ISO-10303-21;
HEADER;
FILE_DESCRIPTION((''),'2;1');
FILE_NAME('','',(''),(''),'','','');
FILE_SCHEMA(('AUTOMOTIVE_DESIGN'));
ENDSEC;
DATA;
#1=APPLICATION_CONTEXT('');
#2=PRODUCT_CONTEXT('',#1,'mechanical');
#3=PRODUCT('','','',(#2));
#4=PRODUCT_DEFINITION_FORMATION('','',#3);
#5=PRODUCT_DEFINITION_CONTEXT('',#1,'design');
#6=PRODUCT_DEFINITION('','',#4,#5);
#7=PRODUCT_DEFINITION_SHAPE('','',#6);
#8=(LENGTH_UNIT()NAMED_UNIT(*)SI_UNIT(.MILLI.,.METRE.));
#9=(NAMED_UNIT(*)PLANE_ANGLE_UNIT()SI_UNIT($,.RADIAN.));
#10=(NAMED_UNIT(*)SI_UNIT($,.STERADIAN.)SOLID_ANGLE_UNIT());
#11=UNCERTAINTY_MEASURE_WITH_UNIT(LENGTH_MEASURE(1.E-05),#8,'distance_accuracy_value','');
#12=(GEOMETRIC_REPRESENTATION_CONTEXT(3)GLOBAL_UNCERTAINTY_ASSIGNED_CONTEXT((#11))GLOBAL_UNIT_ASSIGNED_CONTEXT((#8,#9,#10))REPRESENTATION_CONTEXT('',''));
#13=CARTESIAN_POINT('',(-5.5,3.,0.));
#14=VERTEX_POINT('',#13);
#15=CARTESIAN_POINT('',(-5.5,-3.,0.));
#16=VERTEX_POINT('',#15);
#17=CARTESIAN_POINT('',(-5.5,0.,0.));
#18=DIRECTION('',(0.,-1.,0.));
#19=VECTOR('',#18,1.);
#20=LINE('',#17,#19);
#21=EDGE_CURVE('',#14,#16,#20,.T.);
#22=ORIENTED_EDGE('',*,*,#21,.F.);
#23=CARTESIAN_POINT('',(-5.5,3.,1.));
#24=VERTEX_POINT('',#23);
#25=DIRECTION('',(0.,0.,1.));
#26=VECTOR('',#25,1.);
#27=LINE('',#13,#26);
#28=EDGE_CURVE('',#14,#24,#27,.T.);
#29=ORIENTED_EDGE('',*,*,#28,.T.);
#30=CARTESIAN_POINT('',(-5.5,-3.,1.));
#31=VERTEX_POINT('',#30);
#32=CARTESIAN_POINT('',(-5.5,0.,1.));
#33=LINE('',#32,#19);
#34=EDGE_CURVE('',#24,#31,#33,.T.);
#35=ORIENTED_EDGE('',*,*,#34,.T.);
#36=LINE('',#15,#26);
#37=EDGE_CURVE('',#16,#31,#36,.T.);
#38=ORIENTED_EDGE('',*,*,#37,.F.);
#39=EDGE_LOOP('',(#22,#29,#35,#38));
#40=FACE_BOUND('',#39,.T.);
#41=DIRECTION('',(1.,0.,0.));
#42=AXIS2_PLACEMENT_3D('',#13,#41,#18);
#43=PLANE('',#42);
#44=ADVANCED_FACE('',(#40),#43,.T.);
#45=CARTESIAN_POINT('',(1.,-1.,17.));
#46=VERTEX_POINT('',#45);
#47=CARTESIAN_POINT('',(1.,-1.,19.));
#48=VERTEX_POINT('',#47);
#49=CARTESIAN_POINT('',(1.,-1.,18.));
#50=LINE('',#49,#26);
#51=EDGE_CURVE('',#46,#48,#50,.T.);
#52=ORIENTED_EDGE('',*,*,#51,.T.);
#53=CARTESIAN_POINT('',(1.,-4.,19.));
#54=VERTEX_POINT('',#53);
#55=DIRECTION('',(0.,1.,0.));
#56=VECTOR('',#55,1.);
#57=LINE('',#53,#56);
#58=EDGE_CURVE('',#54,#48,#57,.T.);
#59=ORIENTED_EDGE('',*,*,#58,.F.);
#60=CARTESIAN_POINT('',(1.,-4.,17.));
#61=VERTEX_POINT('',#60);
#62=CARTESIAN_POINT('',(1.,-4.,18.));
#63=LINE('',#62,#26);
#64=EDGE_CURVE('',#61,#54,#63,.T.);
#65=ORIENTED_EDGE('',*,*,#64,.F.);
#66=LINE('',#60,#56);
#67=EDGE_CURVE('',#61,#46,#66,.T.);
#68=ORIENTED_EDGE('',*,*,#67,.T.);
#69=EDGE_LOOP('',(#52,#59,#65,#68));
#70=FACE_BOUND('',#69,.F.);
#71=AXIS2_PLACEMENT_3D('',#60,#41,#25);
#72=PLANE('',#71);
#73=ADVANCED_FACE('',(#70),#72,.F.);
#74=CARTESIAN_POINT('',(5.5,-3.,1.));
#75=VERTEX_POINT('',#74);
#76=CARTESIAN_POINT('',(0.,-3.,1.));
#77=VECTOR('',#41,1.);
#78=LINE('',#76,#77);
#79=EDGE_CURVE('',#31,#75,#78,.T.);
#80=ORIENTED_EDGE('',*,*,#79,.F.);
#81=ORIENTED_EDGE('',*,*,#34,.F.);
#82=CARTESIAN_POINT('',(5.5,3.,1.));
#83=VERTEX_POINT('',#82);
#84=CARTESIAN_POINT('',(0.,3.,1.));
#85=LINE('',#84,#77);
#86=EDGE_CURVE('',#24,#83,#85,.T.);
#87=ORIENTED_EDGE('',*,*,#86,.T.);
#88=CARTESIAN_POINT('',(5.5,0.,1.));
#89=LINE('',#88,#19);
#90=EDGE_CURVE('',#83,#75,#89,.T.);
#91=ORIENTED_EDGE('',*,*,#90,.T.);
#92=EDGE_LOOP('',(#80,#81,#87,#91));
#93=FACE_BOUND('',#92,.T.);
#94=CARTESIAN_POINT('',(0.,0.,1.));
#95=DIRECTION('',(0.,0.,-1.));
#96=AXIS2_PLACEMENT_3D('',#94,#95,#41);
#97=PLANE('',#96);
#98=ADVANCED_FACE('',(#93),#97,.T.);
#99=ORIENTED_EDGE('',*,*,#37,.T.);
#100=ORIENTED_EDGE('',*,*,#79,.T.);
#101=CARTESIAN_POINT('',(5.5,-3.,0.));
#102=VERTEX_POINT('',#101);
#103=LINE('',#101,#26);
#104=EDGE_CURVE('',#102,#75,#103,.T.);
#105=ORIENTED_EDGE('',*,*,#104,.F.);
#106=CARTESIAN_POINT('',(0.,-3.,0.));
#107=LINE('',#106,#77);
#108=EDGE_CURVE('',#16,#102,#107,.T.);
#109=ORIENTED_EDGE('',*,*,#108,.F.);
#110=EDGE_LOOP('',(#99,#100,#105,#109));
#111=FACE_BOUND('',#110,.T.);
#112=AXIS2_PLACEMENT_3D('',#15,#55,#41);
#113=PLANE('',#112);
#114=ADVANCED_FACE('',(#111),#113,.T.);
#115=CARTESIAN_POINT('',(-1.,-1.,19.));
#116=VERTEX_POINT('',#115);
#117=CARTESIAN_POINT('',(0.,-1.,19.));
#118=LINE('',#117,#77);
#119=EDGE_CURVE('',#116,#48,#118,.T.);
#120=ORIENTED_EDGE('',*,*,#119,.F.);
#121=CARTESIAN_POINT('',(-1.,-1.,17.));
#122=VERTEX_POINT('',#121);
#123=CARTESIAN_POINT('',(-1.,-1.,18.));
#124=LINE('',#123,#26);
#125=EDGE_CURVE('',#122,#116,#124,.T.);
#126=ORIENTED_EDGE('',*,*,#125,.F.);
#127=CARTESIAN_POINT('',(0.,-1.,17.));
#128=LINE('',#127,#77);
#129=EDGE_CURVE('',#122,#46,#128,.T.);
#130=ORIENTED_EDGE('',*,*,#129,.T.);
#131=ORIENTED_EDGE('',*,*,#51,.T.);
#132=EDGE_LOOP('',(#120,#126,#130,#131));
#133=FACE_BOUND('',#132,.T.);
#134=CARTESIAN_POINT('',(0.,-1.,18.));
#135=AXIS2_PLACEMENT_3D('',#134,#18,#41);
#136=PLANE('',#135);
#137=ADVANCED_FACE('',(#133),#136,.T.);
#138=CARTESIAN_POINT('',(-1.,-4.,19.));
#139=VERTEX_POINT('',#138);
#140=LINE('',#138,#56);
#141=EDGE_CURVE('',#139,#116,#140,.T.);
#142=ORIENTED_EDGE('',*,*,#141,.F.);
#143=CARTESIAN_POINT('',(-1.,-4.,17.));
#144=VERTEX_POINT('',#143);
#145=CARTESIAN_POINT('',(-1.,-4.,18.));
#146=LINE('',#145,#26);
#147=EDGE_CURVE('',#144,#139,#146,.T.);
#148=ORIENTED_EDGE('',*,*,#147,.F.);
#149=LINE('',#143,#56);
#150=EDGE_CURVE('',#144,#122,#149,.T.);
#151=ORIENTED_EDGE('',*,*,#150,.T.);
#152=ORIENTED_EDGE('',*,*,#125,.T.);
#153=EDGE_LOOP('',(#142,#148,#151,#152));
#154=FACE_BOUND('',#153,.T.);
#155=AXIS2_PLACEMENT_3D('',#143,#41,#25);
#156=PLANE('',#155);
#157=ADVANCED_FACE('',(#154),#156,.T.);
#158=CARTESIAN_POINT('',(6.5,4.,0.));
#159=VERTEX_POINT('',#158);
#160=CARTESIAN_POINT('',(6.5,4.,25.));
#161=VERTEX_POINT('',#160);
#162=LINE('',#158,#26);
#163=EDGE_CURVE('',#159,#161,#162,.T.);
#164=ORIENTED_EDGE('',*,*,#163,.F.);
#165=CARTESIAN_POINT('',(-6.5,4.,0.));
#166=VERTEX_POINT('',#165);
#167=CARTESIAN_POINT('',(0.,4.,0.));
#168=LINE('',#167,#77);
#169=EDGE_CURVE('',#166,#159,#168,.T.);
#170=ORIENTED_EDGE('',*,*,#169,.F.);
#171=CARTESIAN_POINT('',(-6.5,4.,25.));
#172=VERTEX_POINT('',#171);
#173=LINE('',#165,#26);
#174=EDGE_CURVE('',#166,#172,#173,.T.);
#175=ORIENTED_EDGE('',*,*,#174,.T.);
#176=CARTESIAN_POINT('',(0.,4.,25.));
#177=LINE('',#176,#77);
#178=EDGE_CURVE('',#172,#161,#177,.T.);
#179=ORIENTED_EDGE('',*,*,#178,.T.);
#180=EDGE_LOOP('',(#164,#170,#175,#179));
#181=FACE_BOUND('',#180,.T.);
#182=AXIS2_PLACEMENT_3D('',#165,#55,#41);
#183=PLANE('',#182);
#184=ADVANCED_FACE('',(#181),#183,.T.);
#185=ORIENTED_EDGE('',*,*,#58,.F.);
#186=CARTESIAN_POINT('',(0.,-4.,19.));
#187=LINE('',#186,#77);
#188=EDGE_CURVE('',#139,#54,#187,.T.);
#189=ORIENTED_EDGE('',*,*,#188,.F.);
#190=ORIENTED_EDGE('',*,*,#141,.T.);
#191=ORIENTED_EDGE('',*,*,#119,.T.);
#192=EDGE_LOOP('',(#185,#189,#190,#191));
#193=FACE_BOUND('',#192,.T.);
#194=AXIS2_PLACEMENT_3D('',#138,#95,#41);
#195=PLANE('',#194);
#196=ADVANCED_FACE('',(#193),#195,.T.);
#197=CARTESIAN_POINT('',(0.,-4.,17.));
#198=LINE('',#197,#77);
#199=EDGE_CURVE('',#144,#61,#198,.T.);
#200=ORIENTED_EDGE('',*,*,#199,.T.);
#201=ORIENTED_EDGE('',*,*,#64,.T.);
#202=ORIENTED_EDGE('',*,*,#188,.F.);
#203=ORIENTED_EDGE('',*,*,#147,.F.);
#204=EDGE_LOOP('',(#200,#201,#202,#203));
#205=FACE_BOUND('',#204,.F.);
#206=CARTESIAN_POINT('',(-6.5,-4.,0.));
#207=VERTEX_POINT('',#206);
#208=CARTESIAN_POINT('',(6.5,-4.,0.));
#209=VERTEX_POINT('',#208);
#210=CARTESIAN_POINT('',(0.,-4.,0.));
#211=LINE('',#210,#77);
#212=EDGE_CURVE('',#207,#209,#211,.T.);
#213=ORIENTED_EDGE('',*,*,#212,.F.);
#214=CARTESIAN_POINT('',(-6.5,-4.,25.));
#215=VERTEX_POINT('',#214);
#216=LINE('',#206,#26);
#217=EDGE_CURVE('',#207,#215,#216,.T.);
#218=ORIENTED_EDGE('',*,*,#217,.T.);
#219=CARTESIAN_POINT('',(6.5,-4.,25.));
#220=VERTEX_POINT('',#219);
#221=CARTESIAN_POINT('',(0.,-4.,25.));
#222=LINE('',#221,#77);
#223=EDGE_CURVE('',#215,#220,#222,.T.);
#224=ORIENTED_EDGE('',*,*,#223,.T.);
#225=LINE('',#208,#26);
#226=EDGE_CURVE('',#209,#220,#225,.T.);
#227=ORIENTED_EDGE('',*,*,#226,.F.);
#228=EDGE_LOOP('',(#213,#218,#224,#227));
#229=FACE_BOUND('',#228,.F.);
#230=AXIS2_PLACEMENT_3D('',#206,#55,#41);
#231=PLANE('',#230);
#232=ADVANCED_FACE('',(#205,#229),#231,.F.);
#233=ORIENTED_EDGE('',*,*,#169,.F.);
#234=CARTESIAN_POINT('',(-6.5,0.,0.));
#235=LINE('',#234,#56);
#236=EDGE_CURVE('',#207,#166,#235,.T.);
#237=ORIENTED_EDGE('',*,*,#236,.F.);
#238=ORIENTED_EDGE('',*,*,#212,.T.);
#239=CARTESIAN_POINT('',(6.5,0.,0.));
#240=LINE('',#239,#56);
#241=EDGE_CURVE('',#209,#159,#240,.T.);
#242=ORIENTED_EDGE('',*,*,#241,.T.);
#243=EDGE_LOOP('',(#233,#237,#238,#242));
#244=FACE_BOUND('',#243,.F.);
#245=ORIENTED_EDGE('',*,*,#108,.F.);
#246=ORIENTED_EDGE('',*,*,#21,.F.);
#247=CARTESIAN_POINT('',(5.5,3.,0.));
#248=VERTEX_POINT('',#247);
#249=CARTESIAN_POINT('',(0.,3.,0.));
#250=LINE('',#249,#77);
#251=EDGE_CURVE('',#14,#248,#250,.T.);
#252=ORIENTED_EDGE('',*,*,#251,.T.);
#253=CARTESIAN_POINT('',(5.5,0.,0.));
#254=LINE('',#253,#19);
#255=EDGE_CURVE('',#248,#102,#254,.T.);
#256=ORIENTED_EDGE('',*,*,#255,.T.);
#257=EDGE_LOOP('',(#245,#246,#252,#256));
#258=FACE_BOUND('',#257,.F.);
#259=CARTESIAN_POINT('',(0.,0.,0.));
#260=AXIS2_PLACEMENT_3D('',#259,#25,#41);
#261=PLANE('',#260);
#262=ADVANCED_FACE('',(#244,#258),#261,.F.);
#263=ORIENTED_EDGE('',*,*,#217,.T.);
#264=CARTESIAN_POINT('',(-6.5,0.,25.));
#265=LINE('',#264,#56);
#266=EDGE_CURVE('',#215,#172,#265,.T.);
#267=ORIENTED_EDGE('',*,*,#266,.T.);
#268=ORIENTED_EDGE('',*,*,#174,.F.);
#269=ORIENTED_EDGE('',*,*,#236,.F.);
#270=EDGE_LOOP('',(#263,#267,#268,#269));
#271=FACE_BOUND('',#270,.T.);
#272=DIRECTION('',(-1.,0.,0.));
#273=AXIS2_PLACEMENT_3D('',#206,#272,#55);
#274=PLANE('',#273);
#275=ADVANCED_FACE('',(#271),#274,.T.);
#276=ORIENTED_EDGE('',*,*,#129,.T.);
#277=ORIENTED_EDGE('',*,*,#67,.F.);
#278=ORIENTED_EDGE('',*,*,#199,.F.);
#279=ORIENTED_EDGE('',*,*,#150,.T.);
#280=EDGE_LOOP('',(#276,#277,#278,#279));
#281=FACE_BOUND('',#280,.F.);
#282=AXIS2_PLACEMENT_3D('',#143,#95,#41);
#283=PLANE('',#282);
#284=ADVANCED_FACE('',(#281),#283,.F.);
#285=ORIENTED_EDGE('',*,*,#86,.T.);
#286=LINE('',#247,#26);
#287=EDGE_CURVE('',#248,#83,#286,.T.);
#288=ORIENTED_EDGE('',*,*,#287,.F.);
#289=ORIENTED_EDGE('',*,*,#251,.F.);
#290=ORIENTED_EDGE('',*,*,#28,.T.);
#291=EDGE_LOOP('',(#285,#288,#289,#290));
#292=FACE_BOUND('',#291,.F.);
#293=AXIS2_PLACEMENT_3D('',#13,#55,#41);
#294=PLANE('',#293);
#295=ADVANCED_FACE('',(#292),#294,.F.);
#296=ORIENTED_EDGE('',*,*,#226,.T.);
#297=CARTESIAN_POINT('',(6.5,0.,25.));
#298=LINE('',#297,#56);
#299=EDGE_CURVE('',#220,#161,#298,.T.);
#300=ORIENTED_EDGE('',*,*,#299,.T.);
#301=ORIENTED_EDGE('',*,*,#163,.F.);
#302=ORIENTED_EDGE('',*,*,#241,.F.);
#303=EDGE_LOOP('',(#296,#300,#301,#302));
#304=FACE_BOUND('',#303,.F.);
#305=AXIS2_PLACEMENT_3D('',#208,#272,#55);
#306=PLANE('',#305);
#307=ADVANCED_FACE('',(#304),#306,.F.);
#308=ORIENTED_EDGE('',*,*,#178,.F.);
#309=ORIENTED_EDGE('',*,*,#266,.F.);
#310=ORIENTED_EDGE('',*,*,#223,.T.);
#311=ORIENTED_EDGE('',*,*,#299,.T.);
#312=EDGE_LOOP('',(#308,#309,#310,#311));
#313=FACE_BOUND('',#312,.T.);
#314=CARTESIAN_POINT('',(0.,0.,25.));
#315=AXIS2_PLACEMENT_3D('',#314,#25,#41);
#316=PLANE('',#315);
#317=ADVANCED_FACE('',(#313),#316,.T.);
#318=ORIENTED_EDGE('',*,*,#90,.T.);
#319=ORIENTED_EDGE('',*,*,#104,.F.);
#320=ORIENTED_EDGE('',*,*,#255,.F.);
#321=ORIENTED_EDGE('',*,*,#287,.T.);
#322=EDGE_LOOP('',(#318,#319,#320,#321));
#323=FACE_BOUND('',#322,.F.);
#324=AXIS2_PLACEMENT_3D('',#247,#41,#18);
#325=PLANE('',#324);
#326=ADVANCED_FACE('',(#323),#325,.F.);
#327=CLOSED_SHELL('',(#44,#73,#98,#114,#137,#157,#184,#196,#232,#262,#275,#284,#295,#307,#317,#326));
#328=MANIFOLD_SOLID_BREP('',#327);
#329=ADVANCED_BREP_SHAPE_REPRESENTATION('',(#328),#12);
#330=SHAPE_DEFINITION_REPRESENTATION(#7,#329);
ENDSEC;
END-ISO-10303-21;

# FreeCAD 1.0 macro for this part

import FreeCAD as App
import Part
import Sketcher
from FreeCAD import Vector
Q = App.Units.Quantity


def add_polygon(sketch, points):
    """Adds a closed chain of lines whose ends are joined by coincident constraints."""
    first, n = sketch.GeometryCount, len(points)
    for a, b in zip(points, points[1:] + points[:1]):
        sketch.addGeometry(Part.LineSegment(App.Vector(*a, 0), App.Vector(*b, 0)), False)
    for i in range(n):
        sketch.addConstraint(Sketcher.Constraint("Coincident", first + i, 2, first + (i + 1) % n, 1))

doc = App.newDocument("Part")
body = doc.addObject("PartDesign::Body", "Body")

# Sketch on XY plane
sketch1 = doc.addObject("Sketcher::SketchObject", "Sketch")
body.addObject(sketch1)
sketch1.AttachmentSupport = (doc.XY_Plane, [""])
sketch1.MapMode = "FlatFace"
add_polygon(sketch1, [(-6, 4), (-6, -4), (6, -4), (6, 4)])  # lines 0-3
sketch1.addConstraint([
    Sketcher.Constraint("Vertical", 0),
    Sketcher.Constraint("Horizontal", 1),
    Sketcher.Constraint("Vertical", 2),
    Sketcher.Constraint("Horizontal", 3),
    Sketcher.Constraint("Symmetric", 0, 2, 2, 2, -1, 1),
    Sketcher.Constraint("DistanceX", 1, 1, 1, 2, Q("13 mm")),
    Sketcher.Constraint("DistanceY", 0, 2, 0, 1, Q("8 mm")),
])
pad1 = doc.addObject("PartDesign::Pad", "Pad")
body.addObject(pad1)
pad1.Profile = sketch1
pad1.Length = 25

# Sketch on XY plane
sketch2 = doc.addObject("Sketcher::SketchObject", "Sketch001")
body.addObject(sketch2)
sketch2.AttachmentSupport = (doc.XY_Plane, [""])
sketch2.MapMode = "FlatFace"
add_polygon(sketch2, [(-6, -3), (-6, 3), (6, 3), (6, -3)])  # lines 0-3
sketch2.addConstraint([
    Sketcher.Constraint("Vertical", 0),
    Sketcher.Constraint("Horizontal", 1),
    Sketcher.Constraint("Vertical", 2),
    Sketcher.Constraint("Horizontal", 3),
    Sketcher.Constraint("Symmetric", 0, 2, 2, 2, -1, 1),
    Sketcher.Constraint("DistanceX", 1, 1, 1, 2, Q("11 mm")),
    Sketcher.Constraint("DistanceY", 0, 1, 0, 2, Q("6 mm")),
])
pocket1 = doc.addObject("PartDesign::Pocket", "Pocket")
body.addObject(pocket1)
pocket1.Profile = sketch2
pocket1.Length = 1
pocket1.Reversed = True

# Sketch on XZ plane
sketch3 = doc.addObject("Sketcher::SketchObject", "Sketch002")
body.addObject(sketch3)
sketch3.AttachmentSupport = (doc.XZ_Plane, [""])
sketch3.MapMode = "FlatFace"
sketch3.AttachmentOffset = App.Placement(Vector(0, 0, 4), App.Rotation())
add_polygon(sketch3, [(-1, 19), (-1, 17), (1, 17), (1, 19)])  # lines 0-3
sketch3.addConstraint([
    Sketcher.Constraint("Vertical", 0),
    Sketcher.Constraint("Horizontal", 1),
    Sketcher.Constraint("Vertical", 2),
    Sketcher.Constraint("Horizontal", 3),
    Sketcher.Constraint("Equal", 3, 0),
    Sketcher.Constraint("DistanceX", 1, 1, 1, 2, Q("2 mm")),
    Sketcher.Constraint("DistanceX", 0, 2, -1, 1, Q("1 mm")),
    Sketcher.Constraint("DistanceY", -1, 1, 0, 2, Q("17 mm")),
])
pocket2 = doc.addObject("PartDesign::Pocket", "Pocket001")
body.addObject(pocket2)
pocket2.Profile = sketch3
pocket2.Length = 3

doc.recompute()
